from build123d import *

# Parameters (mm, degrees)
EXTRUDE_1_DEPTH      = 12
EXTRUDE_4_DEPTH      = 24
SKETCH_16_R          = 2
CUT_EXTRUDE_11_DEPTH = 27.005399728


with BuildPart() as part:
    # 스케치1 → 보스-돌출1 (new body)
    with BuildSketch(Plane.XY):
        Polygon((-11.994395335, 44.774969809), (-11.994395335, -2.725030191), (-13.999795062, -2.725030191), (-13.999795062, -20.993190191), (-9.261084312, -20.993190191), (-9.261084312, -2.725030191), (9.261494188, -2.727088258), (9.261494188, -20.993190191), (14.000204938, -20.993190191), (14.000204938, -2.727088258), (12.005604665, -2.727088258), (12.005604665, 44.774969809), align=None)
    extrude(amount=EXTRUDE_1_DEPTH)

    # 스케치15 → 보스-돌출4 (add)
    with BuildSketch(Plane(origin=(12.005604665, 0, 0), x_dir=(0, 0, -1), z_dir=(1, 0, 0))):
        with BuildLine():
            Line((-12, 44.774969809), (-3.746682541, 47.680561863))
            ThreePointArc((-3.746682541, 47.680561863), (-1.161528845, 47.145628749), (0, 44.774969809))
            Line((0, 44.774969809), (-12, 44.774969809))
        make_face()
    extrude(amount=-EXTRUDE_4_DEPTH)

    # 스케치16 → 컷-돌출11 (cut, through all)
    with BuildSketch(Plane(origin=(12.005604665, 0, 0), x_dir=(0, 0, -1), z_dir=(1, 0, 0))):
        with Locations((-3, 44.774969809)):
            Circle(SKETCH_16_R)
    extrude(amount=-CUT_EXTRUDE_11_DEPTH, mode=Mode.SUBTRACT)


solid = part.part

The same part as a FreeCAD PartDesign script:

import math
import FreeCAD as App
import Part
import Sketcher
from FreeCAD import Vector
Q = App.Units.Quantity


def add_polygon(sketch, points):
    """Adds a closed chain of lines whose ends are joined by coincident constraints."""
    first, n = sketch.GeometryCount, len(points)
    for a, b in zip(points, points[1:] + points[:1]):
        sketch.addGeometry(Part.LineSegment(App.Vector(*a, 0), App.Vector(*b, 0)), False)
    for i in range(n):
        sketch.addConstraint(Sketcher.Constraint("Coincident", first + i, 2, first + (i + 1) % n, 1))

doc = App.newDocument("Part")
params = doc.addObject("Spreadsheet::Sheet", "Params")
for row, (alias, value) in enumerate([
    ("sketch1_width", "24 mm"),
    ("sketch1_height", "47.5 mm"),
    ("pad1_length", "12 mm"),
    ("sketch2_radius", "3 mm"),
    ("sketch2_height", "12 mm"),
    ("pad2_length", "24 mm"),
    ("sketch3_diameter", "4 mm"),
], start=1):
    params.set(f"A{row}", alias)
    params.set(f"B{row}", "=" + value)
    params.setAlias(f"B{row}", alias)

body = doc.addObject("PartDesign::Body", "Body")

sketch1 = body.newObject("Sketcher::SketchObject", "Sketch")
sketch1.AttachmentSupport = (doc.getObject("XY_Plane"), [""])
sketch1.MapMode = "FlatFace"
add_polygon(sketch1, [(-11.994395, 44.77497), (-11.994395, -2.72503), (-13.999795, -2.72503), (-13.999795, -20.99319), (-9.261084, -20.99319), (-9.261084, -2.72503), (9.261494, -2.727088), (9.261494, -20.99319), (14.000205, -20.99319), (14.000205, -2.727088), (12.005605, -2.727088), (12.005605, 44.77497)])
sketch1.addConstraint(Sketcher.Constraint("Vertical", 0))
sketch1.addConstraint(Sketcher.Constraint("Horizontal", 1))
sketch1.addConstraint(Sketcher.Constraint("Vertical", 2))
sketch1.addConstraint(Sketcher.Constraint("Horizontal", 3))
sketch1.addConstraint(Sketcher.Constraint("Vertical", 4))
sketch1.addConstraint(Sketcher.Constraint("Vertical", 6))
sketch1.addConstraint(Sketcher.Constraint("Horizontal", 7))
sketch1.addConstraint(Sketcher.Constraint("Vertical", 8))
sketch1.addConstraint(Sketcher.Constraint("Horizontal", 9))
sketch1.addConstraint(Sketcher.Constraint("Vertical", 10))
sketch1.addConstraint(Sketcher.Constraint("Horizontal", 11))
sketch1.addConstraint(Sketcher.Constraint("Horizontal", 1, 2, 4, 2))
sketch1.addConstraint(Sketcher.Constraint("Horizontal", 3, 2, 6, 2))
sketch1.addConstraint(Sketcher.Constraint("Horizontal", 5, 2, 8, 2))
sketch1.addConstraint(Sketcher.Constraint("Equal", 3, 7))
sketch1.addConstraint(Sketcher.Constraint("DistanceX", 11, 2, 11, 1, Q("24 mm")))
sketch1.addConstraint(Sketcher.Constraint("DistanceY", 0, 2, 0, 1, Q("47.5 mm")))
sketch1.addConstraint(Sketcher.Constraint("DistanceX", 2, 2, 7, 2, Q("28 mm")))
sketch1.addConstraint(Sketcher.Constraint("DistanceX", 1, 2, 1, 1, Q("2.0054 mm")))
sketch1.addConstraint(Sketcher.Constraint("DistanceY", 6, 2, 6, 1, Q("18.266102 mm")))
sketch1.addConstraint(Sketcher.Constraint("DistanceX", 3, 1, 3, 2, Q("4.738711 mm")))
sketch1.addConstraint(Sketcher.Constraint("DistanceY", 2, 2, 2, 1, Q("18.26816 mm")))
sketch1.addConstraint(Sketcher.Constraint("DistanceY", 0, 2, -1, 1, Q("2.72503 mm")))
sketch1.addConstraint(Sketcher.Constraint("DistanceX", 0, 2, -1, 1, Q("11.994395 mm")))
sketch1.setExpression("Constraints[27]", "Params.sketch1_width")
sketch1.setExpression("Constraints[28]", "Params.sketch1_height")
pad1 = body.newObject("PartDesign::Pad", "Pad")
pad1.Profile = sketch1
pad1.setExpression("Length", "Params.pad1_length")

sketch2 = body.newObject("Sketcher::SketchObject", "Sketch001")
sketch2.AttachmentSupport = (doc.getObject("YZ_Plane"), [""])
sketch2.MapMode = "FlatFace"
sketch2.AttachmentOffset = App.Placement(Vector(0, 0, 12.005605), App.Rotation())
sketch2.addGeometry(Part.LineSegment(Vector(47.680562, 3.746683, 0), Vector(44.77497, 12, 0)), False)
sketch2.addGeometry(Part.LineSegment(Vector(44.77497, 12, 0), Vector(44.77497, 0, 0)), False)
sketch2.addGeometry(Part.ArcOfCircle(Part.Circle(Vector(44.77497, 3, 0), Vector(0, 0, 1), 3), math.radians(-90), math.radians(14.412085)), False)
sketch2.addConstraint(Sketcher.Constraint("Coincident", 0, 2, 1, 1))
sketch2.addConstraint(Sketcher.Constraint("Coincident", 1, 2, 2, 1))
sketch2.addConstraint(Sketcher.Constraint("Coincident", 2, 2, 0, 1))
sketch2.addConstraint(Sketcher.Constraint("Vertical", 1))
sketch2.addConstraint(Sketcher.Constraint("PointOnObject", 1, 2, -1))
sketch2.addConstraint(Sketcher.Constraint("Vertical", 2, 3, 0, 2))
sketch2.addConstraint(Sketcher.Constraint("Radius", 2, Q("3 mm")))
sketch2.addConstraint(Sketcher.Constraint("DistanceY", 1, 2, 1, 1, Q("12 mm")))
sketch2.addConstraint(Sketcher.Constraint("Distance", 0, Q("8.749841 mm")))
sketch2.addConstraint(Sketcher.Constraint("DistanceX", -1, 1, 2, 3, Q("44.77497 mm")))
sketch2.setExpression("Constraints[6]", "Params.sketch2_radius")
sketch2.setExpression("Constraints[7]", "Params.sketch2_height")
pad2 = body.newObject("PartDesign::Pad", "Pad001")
pad2.Profile = sketch2
pad2.setExpression("Length", "Params.pad2_length")
pad2.Reversed = True

sketch3 = body.newObject("Sketcher::SketchObject", "Sketch002")
sketch3.AttachmentSupport = (doc.getObject("YZ_Plane"), [""])
sketch3.MapMode = "FlatFace"
sketch3.AttachmentOffset = App.Placement(Vector(0, 0, 12.005605), App.Rotation())
sketch3.addGeometry(Part.Circle(Vector(44.77497, 3, 0), Vector(0, 0, 1), 2), False)
sketch3.addConstraint(Sketcher.Constraint("Diameter", 0, Q("4 mm")))
sketch3.addConstraint(Sketcher.Constraint("DistanceY", -1, 1, 0, 3, Q("3 mm")))
sketch3.addConstraint(Sketcher.Constraint("DistanceX", -1, 1, 0, 3, Q("44.77497 mm")))
sketch3.setExpression("Constraints[0]", "Params.sketch3_diameter")
pocket1 = body.newObject("PartDesign::Pocket", "Pocket")
pocket1.Profile = sketch3
pocket1.Type = "ThroughAll"

doc.recompute()
